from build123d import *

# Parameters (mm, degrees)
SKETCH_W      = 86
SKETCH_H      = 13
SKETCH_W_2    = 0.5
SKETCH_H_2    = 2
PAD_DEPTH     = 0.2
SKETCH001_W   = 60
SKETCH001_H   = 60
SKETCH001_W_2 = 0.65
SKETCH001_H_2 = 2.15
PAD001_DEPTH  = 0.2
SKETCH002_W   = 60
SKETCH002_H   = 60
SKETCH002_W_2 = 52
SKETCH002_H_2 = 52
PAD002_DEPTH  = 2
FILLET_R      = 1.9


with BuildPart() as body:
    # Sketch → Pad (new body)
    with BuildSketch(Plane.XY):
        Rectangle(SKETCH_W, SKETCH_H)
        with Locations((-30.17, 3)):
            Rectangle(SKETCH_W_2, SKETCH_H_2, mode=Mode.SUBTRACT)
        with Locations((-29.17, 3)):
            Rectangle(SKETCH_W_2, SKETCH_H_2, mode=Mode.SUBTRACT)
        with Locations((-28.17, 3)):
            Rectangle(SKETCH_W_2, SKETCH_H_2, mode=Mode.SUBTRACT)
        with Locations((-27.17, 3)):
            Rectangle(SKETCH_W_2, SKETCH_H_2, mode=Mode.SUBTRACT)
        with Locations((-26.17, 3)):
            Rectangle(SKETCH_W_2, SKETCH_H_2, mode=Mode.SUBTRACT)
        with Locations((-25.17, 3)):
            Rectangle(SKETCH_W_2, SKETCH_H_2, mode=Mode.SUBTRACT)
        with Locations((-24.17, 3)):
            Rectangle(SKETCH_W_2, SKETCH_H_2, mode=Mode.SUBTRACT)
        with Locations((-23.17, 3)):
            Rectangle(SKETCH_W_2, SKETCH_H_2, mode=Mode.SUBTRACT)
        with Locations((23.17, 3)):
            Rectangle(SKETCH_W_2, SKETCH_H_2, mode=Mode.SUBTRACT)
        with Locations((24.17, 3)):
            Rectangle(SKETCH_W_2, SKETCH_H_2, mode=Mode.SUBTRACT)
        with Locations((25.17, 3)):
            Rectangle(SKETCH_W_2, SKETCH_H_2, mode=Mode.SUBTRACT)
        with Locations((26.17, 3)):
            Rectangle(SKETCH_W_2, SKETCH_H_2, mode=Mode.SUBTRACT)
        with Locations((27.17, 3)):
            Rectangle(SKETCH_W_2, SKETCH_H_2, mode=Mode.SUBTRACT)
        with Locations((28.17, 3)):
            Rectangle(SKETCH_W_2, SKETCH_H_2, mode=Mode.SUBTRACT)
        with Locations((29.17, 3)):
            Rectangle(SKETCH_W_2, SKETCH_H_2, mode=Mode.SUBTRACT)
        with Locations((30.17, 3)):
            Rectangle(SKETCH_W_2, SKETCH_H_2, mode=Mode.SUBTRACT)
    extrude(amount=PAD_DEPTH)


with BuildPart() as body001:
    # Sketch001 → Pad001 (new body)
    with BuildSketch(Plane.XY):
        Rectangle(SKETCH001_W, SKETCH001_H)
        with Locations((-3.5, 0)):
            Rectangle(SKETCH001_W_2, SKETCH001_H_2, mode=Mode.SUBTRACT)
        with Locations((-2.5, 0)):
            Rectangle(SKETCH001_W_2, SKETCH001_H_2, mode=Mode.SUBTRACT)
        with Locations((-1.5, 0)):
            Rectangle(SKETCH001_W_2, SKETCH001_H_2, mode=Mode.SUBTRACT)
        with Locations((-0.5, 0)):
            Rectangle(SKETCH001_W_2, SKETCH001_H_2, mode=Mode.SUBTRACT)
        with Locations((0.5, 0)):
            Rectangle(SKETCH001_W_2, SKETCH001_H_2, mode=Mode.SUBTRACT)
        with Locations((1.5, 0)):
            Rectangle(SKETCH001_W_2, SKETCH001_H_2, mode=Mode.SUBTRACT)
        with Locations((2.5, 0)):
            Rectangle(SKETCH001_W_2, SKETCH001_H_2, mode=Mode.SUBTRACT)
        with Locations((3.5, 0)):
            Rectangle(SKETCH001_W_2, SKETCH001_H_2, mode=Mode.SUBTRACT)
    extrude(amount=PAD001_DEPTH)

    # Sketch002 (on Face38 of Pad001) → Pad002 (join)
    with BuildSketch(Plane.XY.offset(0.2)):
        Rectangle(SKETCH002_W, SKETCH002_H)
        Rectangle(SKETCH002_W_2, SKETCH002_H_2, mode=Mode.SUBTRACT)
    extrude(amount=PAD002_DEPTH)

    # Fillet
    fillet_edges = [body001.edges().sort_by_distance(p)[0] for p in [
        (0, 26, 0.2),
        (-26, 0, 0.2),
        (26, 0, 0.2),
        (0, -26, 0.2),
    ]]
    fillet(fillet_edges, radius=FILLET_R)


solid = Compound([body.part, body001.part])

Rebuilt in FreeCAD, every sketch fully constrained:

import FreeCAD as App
import Part
import Sketcher

V = App.Vector


def edges_at(feature, points):
    """Names of the edges that pass closest to the given points."""
    edges = feature.Shape.Edges
    near = lambda p: min(range(len(edges)), key=lambda i: edges[i].distToShape(Part.Vertex(*p))[0])
    return sorted({f"Edge{near(p) + 1}" for p in points})

doc = App.newDocument("Part")
body = doc.addObject("PartDesign::Body", "Body")

sketch1 = doc.addObject("Sketcher::SketchObject", "Sketch")
body.addObject(sketch1)
sketch1.AttachmentSupport = (doc.XY_Plane, [""])
sketch1.MapMode = "FlatFace"
sketch1.addGeometry(Part.LineSegment(V(-43, 6.5, 0), V(-43, -6.5, 0)), False)
sketch1.addGeometry(Part.LineSegment(V(-43, -6.5, 0), V(43, -6.5, 0)), False)
sketch1.addGeometry(Part.LineSegment(V(43, -6.5, 0), V(43, 6.5, 0)), False)
sketch1.addGeometry(Part.LineSegment(V(43, 6.5, 0), V(-43, 6.5, 0)), False)
sketch1.addGeometry(Part.LineSegment(V(-29.92, 2, 0), V(-30.42, 2, 0)), False)
sketch1.addGeometry(Part.LineSegment(V(-30.42, 2, 0), V(-30.42, 4, 0)), False)
sketch1.addGeometry(Part.LineSegment(V(-30.42, 4, 0), V(-29.92, 4, 0)), False)
sketch1.addGeometry(Part.LineSegment(V(-29.92, 4, 0), V(-29.92, 2, 0)), False)
sketch1.addGeometry(Part.LineSegment(V(-28.92, 2, 0), V(-29.42, 2, 0)), False)
sketch1.addGeometry(Part.LineSegment(V(-29.42, 2, 0), V(-29.42, 4, 0)), False)
sketch1.addGeometry(Part.LineSegment(V(-29.42, 4, 0), V(-28.92, 4, 0)), False)
sketch1.addGeometry(Part.LineSegment(V(-28.92, 4, 0), V(-28.92, 2, 0)), False)
sketch1.addGeometry(Part.LineSegment(V(-27.92, 2, 0), V(-28.42, 2, 0)), False)
sketch1.addGeometry(Part.LineSegment(V(-28.42, 2, 0), V(-28.42, 4, 0)), False)
sketch1.addGeometry(Part.LineSegment(V(-28.42, 4, 0), V(-27.92, 4, 0)), False)
sketch1.addGeometry(Part.LineSegment(V(-27.92, 4, 0), V(-27.92, 2, 0)), False)
sketch1.addGeometry(Part.LineSegment(V(-26.92, 2, 0), V(-27.42, 2, 0)), False)
sketch1.addGeometry(Part.LineSegment(V(-27.42, 2, 0), V(-27.42, 4, 0)), False)
sketch1.addGeometry(Part.LineSegment(V(-27.42, 4, 0), V(-26.92, 4, 0)), False)
sketch1.addGeometry(Part.LineSegment(V(-26.92, 4, 0), V(-26.92, 2, 0)), False)
sketch1.addGeometry(Part.LineSegment(V(-25.92, 2, 0), V(-26.42, 2, 0)), False)
sketch1.addGeometry(Part.LineSegment(V(-26.42, 2, 0), V(-26.42, 4, 0)), False)
sketch1.addGeometry(Part.LineSegment(V(-26.42, 4, 0), V(-25.92, 4, 0)), False)
sketch1.addGeometry(Part.LineSegment(V(-25.92, 4, 0), V(-25.92, 2, 0)), False)
sketch1.addGeometry(Part.LineSegment(V(-24.92, 2, 0), V(-25.42, 2, 0)), False)
sketch1.addGeometry(Part.LineSegment(V(-25.42, 2, 0), V(-25.42, 4, 0)), False)
sketch1.addGeometry(Part.LineSegment(V(-25.42, 4, 0), V(-24.92, 4, 0)), False)
sketch1.addGeometry(Part.LineSegment(V(-24.92, 4, 0), V(-24.92, 2, 0)), False)
sketch1.addGeometry(Part.LineSegment(V(-23.92, 2, 0), V(-24.42, 2, 0)), False)
sketch1.addGeometry(Part.LineSegment(V(-24.42, 2, 0), V(-24.42, 4, 0)), False)
sketch1.addGeometry(Part.LineSegment(V(-24.42, 4, 0), V(-23.92, 4, 0)), False)
sketch1.addGeometry(Part.LineSegment(V(-23.92, 4, 0), V(-23.92, 2, 0)), False)
sketch1.addGeometry(Part.LineSegment(V(-22.92, 2, 0), V(-23.42, 2, 0)), False)
sketch1.addGeometry(Part.LineSegment(V(-23.42, 2, 0), V(-23.42, 4, 0)), False)
sketch1.addGeometry(Part.LineSegment(V(-23.42, 4, 0), V(-22.92, 4, 0)), False)
sketch1.addGeometry(Part.LineSegment(V(-22.92, 4, 0), V(-22.92, 2, 0)), False)
sketch1.addGeometry(Part.LineSegment(V(23.42, 2, 0), V(22.92, 2, 0)), False)
sketch1.addGeometry(Part.LineSegment(V(22.92, 2, 0), V(22.92, 4, 0)), False)
sketch1.addGeometry(Part.LineSegment(V(22.92, 4, 0), V(23.42, 4, 0)), False)
sketch1.addGeometry(Part.LineSegment(V(23.42, 4, 0), V(23.42, 2, 0)), False)
sketch1.addGeometry(Part.LineSegment(V(24.42, 2, 0), V(23.92, 2, 0)), False)
sketch1.addGeometry(Part.LineSegment(V(23.92, 2, 0), V(23.92, 4, 0)), False)
sketch1.addGeometry(Part.LineSegment(V(23.92, 4, 0), V(24.42, 4, 0)), False)
sketch1.addGeometry(Part.LineSegment(V(24.42, 4, 0), V(24.42, 2, 0)), False)
sketch1.addGeometry(Part.LineSegment(V(25.42, 2, 0), V(24.92, 2, 0)), False)
sketch1.addGeometry(Part.LineSegment(V(24.92, 2, 0), V(24.92, 4, 0)), False)
sketch1.addGeometry(Part.LineSegment(V(24.92, 4, 0), V(25.42, 4, 0)), False)
sketch1.addGeometry(Part.LineSegment(V(25.42, 4, 0), V(25.42, 2, 0)), False)
sketch1.addGeometry(Part.LineSegment(V(26.42, 2, 0), V(25.92, 2, 0)), False)
sketch1.addGeometry(Part.LineSegment(V(25.92, 2, 0), V(25.92, 4, 0)), False)
sketch1.addGeometry(Part.LineSegment(V(25.92, 4, 0), V(26.42, 4, 0)), False)
sketch1.addGeometry(Part.LineSegment(V(26.42, 4, 0), V(26.42, 2, 0)), False)
sketch1.addGeometry(Part.LineSegment(V(27.42, 2, 0), V(26.92, 2, 0)), False)
sketch1.addGeometry(Part.LineSegment(V(26.92, 2, 0), V(26.92, 4, 0)), False)
sketch1.addGeometry(Part.LineSegment(V(26.92, 4, 0), V(27.42, 4, 0)), False)
sketch1.addGeometry(Part.LineSegment(V(27.42, 4, 0), V(27.42, 2, 0)), False)
sketch1.addGeometry(Part.LineSegment(V(28.42, 2, 0), V(27.92, 2, 0)), False)
sketch1.addGeometry(Part.LineSegment(V(27.92, 2, 0), V(27.92, 4, 0)), False)
sketch1.addGeometry(Part.LineSegment(V(27.92, 4, 0), V(28.42, 4, 0)), False)
sketch1.addGeometry(Part.LineSegment(V(28.42, 4, 0), V(28.42, 2, 0)), False)
sketch1.addGeometry(Part.LineSegment(V(29.42, 2, 0), V(28.92, 2, 0)), False)
sketch1.addGeometry(Part.LineSegment(V(28.92, 2, 0), V(28.92, 4, 0)), False)
sketch1.addGeometry(Part.LineSegment(V(28.92, 4, 0), V(29.42, 4, 0)), False)
sketch1.addGeometry(Part.LineSegment(V(29.42, 4, 0), V(29.42, 2, 0)), False)
sketch1.addGeometry(Part.LineSegment(V(30.42, 2, 0), V(29.92, 2, 0)), False)
sketch1.addGeometry(Part.LineSegment(V(29.92, 2, 0), V(29.92, 4, 0)), False)
sketch1.addGeometry(Part.LineSegment(V(29.92, 4, 0), V(30.42, 4, 0)), False)
sketch1.addGeometry(Part.LineSegment(V(30.42, 4, 0), V(30.42, 2, 0)), False)
sketch1.addConstraint(Sketcher.Constraint("Coincident", 0, 2, 1, 1))
sketch1.addConstraint(Sketcher.Constraint("Coincident", 1, 2, 2, 1))
sketch1.addConstraint(Sketcher.Constraint("Coincident", 2, 2, 3, 1))
sketch1.addConstraint(Sketcher.Constraint("Coincident", 3, 2, 0, 1))
sketch1.addConstraint(Sketcher.Constraint("Coincident", 4, 2, 5, 1))
sketch1.addConstraint(Sketcher.Constraint("Coincident", 5, 2, 6, 1))
sketch1.addConstraint(Sketcher.Constraint("Coincident", 6, 2, 7, 1))
sketch1.addConstraint(Sketcher.Constraint("Coincident", 7, 2, 4, 1))
sketch1.addConstraint(Sketcher.Constraint("Coincident", 8, 2, 9, 1))
sketch1.addConstraint(Sketcher.Constraint("Coincident", 9, 2, 10, 1))
sketch1.addConstraint(Sketcher.Constraint("Coincident", 10, 2, 11, 1))
sketch1.addConstraint(Sketcher.Constraint("Coincident", 11, 2, 8, 1))
sketch1.addConstraint(Sketcher.Constraint("Coincident", 12, 2, 13, 1))
sketch1.addConstraint(Sketcher.Constraint("Coincident", 13, 2, 14, 1))
sketch1.addConstraint(Sketcher.Constraint("Coincident", 14, 2, 15, 1))
sketch1.addConstraint(Sketcher.Constraint("Coincident", 15, 2, 12, 1))
sketch1.addConstraint(Sketcher.Constraint("Coincident", 16, 2, 17, 1))
sketch1.addConstraint(Sketcher.Constraint("Coincident", 17, 2, 18, 1))
sketch1.addConstraint(Sketcher.Constraint("Coincident", 18, 2, 19, 1))
sketch1.addConstraint(Sketcher.Constraint("Coincident", 19, 2, 16, 1))
sketch1.addConstraint(Sketcher.Constraint("Coincident", 20, 2, 21, 1))
sketch1.addConstraint(Sketcher.Constraint("Coincident", 21, 2, 22, 1))
sketch1.addConstraint(Sketcher.Constraint("Coincident", 22, 2, 23, 1))
sketch1.addConstraint(Sketcher.Constraint("Coincident", 23, 2, 20, 1))
sketch1.addConstraint(Sketcher.Constraint("Coincident", 24, 2, 25, 1))
sketch1.addConstraint(Sketcher.Constraint("Coincident", 25, 2, 26, 1))
sketch1.addConstraint(Sketcher.Constraint("Coincident", 26, 2, 27, 1))
sketch1.addConstraint(Sketcher.Constraint("Coincident", 27, 2, 24, 1))
sketch1.addConstraint(Sketcher.Constraint("Coincident", 28, 2, 29, 1))
sketch1.addConstraint(Sketcher.Constraint("Coincident", 29, 2, 30, 1))
sketch1.addConstraint(Sketcher.Constraint("Coincident", 30, 2, 31, 1))
sketch1.addConstraint(Sketcher.Constraint("Coincident", 31, 2, 28, 1))
sketch1.addConstraint(Sketcher.Constraint("Coincident", 32, 2, 33, 1))
sketch1.addConstraint(Sketcher.Constraint("Coincident", 33, 2, 34, 1))
sketch1.addConstraint(Sketcher.Constraint("Coincident", 34, 2, 35, 1))
sketch1.addConstraint(Sketcher.Constraint("Coincident", 35, 2, 32, 1))
sketch1.addConstraint(Sketcher.Constraint("Coincident", 36, 2, 37, 1))
sketch1.addConstraint(Sketcher.Constraint("Coincident", 37, 2, 38, 1))
sketch1.addConstraint(Sketcher.Constraint("Coincident", 38, 2, 39, 1))
sketch1.addConstraint(Sketcher.Constraint("Coincident", 39, 2, 36, 1))
sketch1.addConstraint(Sketcher.Constraint("Coincident", 40, 2, 41, 1))
sketch1.addConstraint(Sketcher.Constraint("Coincident", 41, 2, 42, 1))
sketch1.addConstraint(Sketcher.Constraint("Coincident", 42, 2, 43, 1))
sketch1.addConstraint(Sketcher.Constraint("Coincident", 43, 2, 40, 1))
sketch1.addConstraint(Sketcher.Constraint("Coincident", 44, 2, 45, 1))
sketch1.addConstraint(Sketcher.Constraint("Coincident", 45, 2, 46, 1))
sketch1.addConstraint(Sketcher.Constraint("Coincident", 46, 2, 47, 1))
sketch1.addConstraint(Sketcher.Constraint("Coincident", 47, 2, 44, 1))
sketch1.addConstraint(Sketcher.Constraint("Coincident", 48, 2, 49, 1))
sketch1.addConstraint(Sketcher.Constraint("Coincident", 49, 2, 50, 1))
sketch1.addConstraint(Sketcher.Constraint("Coincident", 50, 2, 51, 1))
sketch1.addConstraint(Sketcher.Constraint("Coincident", 51, 2, 48, 1))
sketch1.addConstraint(Sketcher.Constraint("Coincident", 52, 2, 53, 1))
sketch1.addConstraint(Sketcher.Constraint("Coincident", 53, 2, 54, 1))
sketch1.addConstraint(Sketcher.Constraint("Coincident", 54, 2, 55, 1))
sketch1.addConstraint(Sketcher.Constraint("Coincident", 55, 2, 52, 1))
sketch1.addConstraint(Sketcher.Constraint("Coincident", 56, 2, 57, 1))
sketch1.addConstraint(Sketcher.Constraint("Coincident", 57, 2, 58, 1))
sketch1.addConstraint(Sketcher.Constraint("Coincident", 58, 2, 59, 1))
sketch1.addConstraint(Sketcher.Constraint("Coincident", 59, 2, 56, 1))
sketch1.addConstraint(Sketcher.Constraint("Coincident", 60, 2, 61, 1))
sketch1.addConstraint(Sketcher.Constraint("Coincident", 61, 2, 62, 1))
sketch1.addConstraint(Sketcher.Constraint("Coincident", 62, 2, 63, 1))
sketch1.addConstraint(Sketcher.Constraint("Coincident", 63, 2, 60, 1))
sketch1.addConstraint(Sketcher.Constraint("Coincident", 64, 2, 65, 1))
sketch1.addConstraint(Sketcher.Constraint("Coincident", 65, 2, 66, 1))
sketch1.addConstraint(Sketcher.Constraint("Coincident", 66, 2, 67, 1))
sketch1.addConstraint(Sketcher.Constraint("Coincident", 67, 2, 64, 1))
sketch1.addConstraint(Sketcher.Constraint("Vertical", 0))
sketch1.addConstraint(Sketcher.Constraint("Horizontal", 1))
sketch1.addConstraint(Sketcher.Constraint("Vertical", 2))
sketch1.addConstraint(Sketcher.Constraint("Horizontal", 3))
sketch1.addConstraint(Sketcher.Constraint("Horizontal", 4))
sketch1.addConstraint(Sketcher.Constraint("Vertical", 5))
sketch1.addConstraint(Sketcher.Constraint("Horizontal", 6))
sketch1.addConstraint(Sketcher.Constraint("Vertical", 7))
sketch1.addConstraint(Sketcher.Constraint("Horizontal", 8))
sketch1.addConstraint(Sketcher.Constraint("Vertical", 9))
sketch1.addConstraint(Sketcher.Constraint("Horizontal", 10))
sketch1.addConstraint(Sketcher.Constraint("Vertical", 11))
sketch1.addConstraint(Sketcher.Constraint("Horizontal", 12))
sketch1.addConstraint(Sketcher.Constraint("Vertical", 13))
sketch1.addConstraint(Sketcher.Constraint("Horizontal", 14))
sketch1.addConstraint(Sketcher.Constraint("Vertical", 15))
sketch1.addConstraint(Sketcher.Constraint("Horizontal", 16))
sketch1.addConstraint(Sketcher.Constraint("Vertical", 17))
sketch1.addConstraint(Sketcher.Constraint("Horizontal", 18))
sketch1.addConstraint(Sketcher.Constraint("Vertical", 19))
sketch1.addConstraint(Sketcher.Constraint("Horizontal", 20))
sketch1.addConstraint(Sketcher.Constraint("Vertical", 21))
sketch1.addConstraint(Sketcher.Constraint("Horizontal", 22))
sketch1.addConstraint(Sketcher.Constraint("Vertical", 23))
sketch1.addConstraint(Sketcher.Constraint("Horizontal", 24))
sketch1.addConstraint(Sketcher.Constraint("Vertical", 25))
sketch1.addConstraint(Sketcher.Constraint("Horizontal", 26))
sketch1.addConstraint(Sketcher.Constraint("Vertical", 27))
sketch1.addConstraint(Sketcher.Constraint("Horizontal", 28))
sketch1.addConstraint(Sketcher.Constraint("Vertical", 29))
sketch1.addConstraint(Sketcher.Constraint("Horizontal", 30))
sketch1.addConstraint(Sketcher.Constraint("Vertical", 31))
sketch1.addConstraint(Sketcher.Constraint("Horizontal", 32))
sketch1.addConstraint(Sketcher.Constraint("Vertical", 33))
sketch1.addConstraint(Sketcher.Constraint("Horizontal", 34))
sketch1.addConstraint(Sketcher.Constraint("Vertical", 35))
sketch1.addConstraint(Sketcher.Constraint("Horizontal", 36))
sketch1.addConstraint(Sketcher.Constraint("Vertical", 37))
sketch1.addConstraint(Sketcher.Constraint("Horizontal", 38))
sketch1.addConstraint(Sketcher.Constraint("Vertical", 39))
sketch1.addConstraint(Sketcher.Constraint("Horizontal", 40))
sketch1.addConstraint(Sketcher.Constraint("Vertical", 41))
sketch1.addConstraint(Sketcher.Constraint("Horizontal", 42))
sketch1.addConstraint(Sketcher.Constraint("Vertical", 43))
sketch1.addConstraint(Sketcher.Constraint("Horizontal", 44))
sketch1.addConstraint(Sketcher.Constraint("Vertical", 45))
sketch1.addConstraint(Sketcher.Constraint("Horizontal", 46))
sketch1.addConstraint(Sketcher.Constraint("Vertical", 47))
sketch1.addConstraint(Sketcher.Constraint("Horizontal", 48))
sketch1.addConstraint(Sketcher.Constraint("Vertical", 49))
sketch1.addConstraint(Sketcher.Constraint("Horizontal", 50))
sketch1.addConstraint(Sketcher.Constraint("Vertical", 51))
sketch1.addConstraint(Sketcher.Constraint("Horizontal", 52))
sketch1.addConstraint(Sketcher.Constraint("Vertical", 53))
sketch1.addConstraint(Sketcher.Constraint("Horizontal", 54))
sketch1.addConstraint(Sketcher.Constraint("Vertical", 55))
sketch1.addConstraint(Sketcher.Constraint("Horizontal", 56))
sketch1.addConstraint(Sketcher.Constraint("Vertical", 57))
sketch1.addConstraint(Sketcher.Constraint("Horizontal", 58))
sketch1.addConstraint(Sketcher.Constraint("Vertical", 59))
sketch1.addConstraint(Sketcher.Constraint("Horizontal", 60))
sketch1.addConstraint(Sketcher.Constraint("Vertical", 61))
sketch1.addConstraint(Sketcher.Constraint("Horizontal", 62))
sketch1.addConstraint(Sketcher.Constraint("Vertical", 63))
sketch1.addConstraint(Sketcher.Constraint("Horizontal", 64))
sketch1.addConstraint(Sketcher.Constraint("Vertical", 65))
sketch1.addConstraint(Sketcher.Constraint("Horizontal", 66))
sketch1.addConstraint(Sketcher.Constraint("Vertical", 67))
sketch1.addConstraint(Sketcher.Constraint("Symmetric", 0, 2, 2, 2, -1, 1))
sketch1.addConstraint(Sketcher.Constraint("Symmetric", 35, 2, 36, 2, -2))
sketch1.addConstraint(Sketcher.Constraint("Symmetric", 33, 2, 38, 2, -2))
sketch1.addConstraint(Sketcher.Constraint("Symmetric", 31, 2, 40, 2, -2))
sketch1.addConstraint(Sketcher.Constraint("Symmetric", 29, 2, 42, 2, -2))
sketch1.addConstraint(Sketcher.Constraint("Symmetric", 27, 2, 44, 2, -2))
sketch1.addConstraint(Sketcher.Constraint("Symmetric", 25, 2, 46, 2, -2))
sketch1.addConstraint(Sketcher.Constraint("Symmetric", 23, 2, 48, 2, -2))
sketch1.addConstraint(Sketcher.Constraint("Symmetric", 21, 2, 50, 2, -2))
sketch1.addConstraint(Sketcher.Constraint("Symmetric", 19, 2, 52, 2, -2))
sketch1.addConstraint(Sketcher.Constraint("Symmetric", 17, 2, 54, 2, -2))
sketch1.addConstraint(Sketcher.Constraint("Symmetric", 15, 2, 56, 2, -2))
sketch1.addConstraint(Sketcher.Constraint("Symmetric", 13, 2, 58, 2, -2))
sketch1.addConstraint(Sketcher.Constraint("Symmetric", 11, 2, 60, 2, -2))
sketch1.addConstraint(Sketcher.Constraint("Symmetric", 9, 2, 62, 2, -2))
sketch1.addConstraint(Sketcher.Constraint("Symmetric", 7, 2, 64, 2, -2))
sketch1.addConstraint(Sketcher.Constraint("Symmetric", 5, 2, 66, 2, -2))
sketch1.addConstraint(Sketcher.Constraint("Horizontal", 7, 2, 8, 2))
sketch1.addConstraint(Sketcher.Constraint("Horizontal", 6, 2, 9, 2))
sketch1.addConstraint(Sketcher.Constraint("Horizontal", 11, 2, 12, 2))
sketch1.addConstraint(Sketcher.Constraint("Horizontal", 10, 2, 13, 2))
sketch1.addConstraint(Sketcher.Constraint("Horizontal", 15, 2, 16, 2))
sketch1.addConstraint(Sketcher.Constraint("Horizontal", 14, 2, 17, 2))
sketch1.addConstraint(Sketcher.Constraint("Horizontal", 19, 2, 20, 2))
sketch1.addConstraint(Sketcher.Constraint("Horizontal", 18, 2, 21, 2))
sketch1.addConstraint(Sketcher.Constraint("Horizontal", 23, 2, 24, 2))
sketch1.addConstraint(Sketcher.Constraint("Horizontal", 22, 2, 25, 2))
sketch1.addConstraint(Sketcher.Constraint("Horizontal", 27, 2, 28, 2))
sketch1.addConstraint(Sketcher.Constraint("Horizontal", 26, 2, 29, 2))
sketch1.addConstraint(Sketcher.Constraint("Horizontal", 31, 2, 32, 2))
sketch1.addConstraint(Sketcher.Constraint("Horizontal", 30, 2, 33, 2))
sketch1.addConstraint(Sketcher.Constraint("Equal", 6, 8))
sketch1.addConstraint(Sketcher.Constraint("Equal", 10, 12))
sketch1.addConstraint(Sketcher.Constraint("Equal", 14, 16))
sketch1.addConstraint(Sketcher.Constraint("Equal", 18, 20))
sketch1.addConstraint(Sketcher.Constraint("Equal", 22, 24))
sketch1.addConstraint(Sketcher.Constraint("Equal", 26, 28))
sketch1.addConstraint(Sketcher.Constraint("Equal", 30, 32))
sketch1.addConstraint(Sketcher.Constraint("DistanceX", 1, 1, 1, 2, 86.0))
sketch1.addConstraint(Sketcher.Constraint("DistanceY", 0, 2, 0, 1, 13.0))
sketch1.addConstraint(Sketcher.Constraint("DistanceY", 5, 1, 5, 2, 2.0))
sketch1.addConstraint(Sketcher.Constraint("DistanceX", 4, 2, 4, 1, 0.5))
sketch1.addConstraint(Sketcher.Constraint("DistanceY", -1, 1, 4, 2, 2.0))
sketch1.addConstraint(Sketcher.Constraint("DistanceX", 4, 2, -1, 1, 30.42))
sketch1.addConstraint(Sketcher.Constraint("DistanceX", 8, 2, -1, 1, 29.42))
sketch1.addConstraint(Sketcher.Constraint("DistanceX", 12, 2, -1, 1, 28.42))
sketch1.addConstraint(Sketcher.Constraint("DistanceX", 16, 2, -1, 1, 27.42))
sketch1.addConstraint(Sketcher.Constraint("DistanceX", 20, 2, -1, 1, 26.42))
sketch1.addConstraint(Sketcher.Constraint("DistanceX", 24, 2, -1, 1, 25.42))
sketch1.addConstraint(Sketcher.Constraint("DistanceX", 28, 2, -1, 1, 24.42))
sketch1.addConstraint(Sketcher.Constraint("DistanceX", 32, 2, -1, 1, 23.42))
pad1 = doc.addObject("PartDesign::Pad", "Pad")
body.addObject(pad1)
pad1.Profile = sketch1
pad1.Length = 0.2
body2 = doc.addObject("PartDesign::Body", "Body001")

sketch2 = doc.addObject("Sketcher::SketchObject", "Sketch001")
body2.addObject(sketch2)
sketch2.AttachmentSupport = (doc.getObject("XY_Plane001"), [""])
sketch2.MapMode = "FlatFace"
sketch2.addGeometry(Part.LineSegment(V(-30, 30, 0), V(-30, -30, 0)), False)
sketch2.addGeometry(Part.LineSegment(V(-30, -30, 0), V(30, -30, 0)), False)
sketch2.addGeometry(Part.LineSegment(V(30, -30, 0), V(30, 30, 0)), False)
sketch2.addGeometry(Part.LineSegment(V(30, 30, 0), V(-30, 30, 0)), False)
sketch2.addGeometry(Part.LineSegment(V(-3.175, -1.075, 0), V(-3.825, -1.075, 0)), False)
sketch2.addGeometry(Part.LineSegment(V(-3.825, -1.075, 0), V(-3.825, 1.075, 0)), False)
sketch2.addGeometry(Part.LineSegment(V(-3.825, 1.075, 0), V(-3.175, 1.075, 0)), False)
sketch2.addGeometry(Part.LineSegment(V(-3.175, 1.075, 0), V(-3.175, -1.075, 0)), False)
sketch2.addGeometry(Part.LineSegment(V(-2.175, -1.075, 0), V(-2.825, -1.075, 0)), False)
sketch2.addGeometry(Part.LineSegment(V(-2.825, -1.075, 0), V(-2.825, 1.075, 0)), False)
sketch2.addGeometry(Part.LineSegment(V(-2.825, 1.075, 0), V(-2.175, 1.075, 0)), False)
sketch2.addGeometry(Part.LineSegment(V(-2.175, 1.075, 0), V(-2.175, -1.075, 0)), False)
sketch2.addGeometry(Part.LineSegment(V(-1.175, -1.075, 0), V(-1.825, -1.075, 0)), False)
sketch2.addGeometry(Part.LineSegment(V(-1.825, -1.075, 0), V(-1.825, 1.075, 0)), False)
sketch2.addGeometry(Part.LineSegment(V(-1.825, 1.075, 0), V(-1.175, 1.075, 0)), False)
sketch2.addGeometry(Part.LineSegment(V(-1.175, 1.075, 0), V(-1.175, -1.075, 0)), False)
sketch2.addGeometry(Part.LineSegment(V(-0.175, -1.075, 0), V(-0.825, -1.075, 0)), False)
sketch2.addGeometry(Part.LineSegment(V(-0.825, -1.075, 0), V(-0.825, 1.075, 0)), False)
sketch2.addGeometry(Part.LineSegment(V(-0.825, 1.075, 0), V(-0.175, 1.075, 0)), False)
sketch2.addGeometry(Part.LineSegment(V(-0.175, 1.075, 0), V(-0.175, -1.075, 0)), False)
sketch2.addGeometry(Part.LineSegment(V(0.825, -1.075, 0), V(0.175, -1.075, 0)), False)
sketch2.addGeometry(Part.LineSegment(V(0.175, -1.075, 0), V(0.175, 1.075, 0)), False)
sketch2.addGeometry(Part.LineSegment(V(0.175, 1.075, 0), V(0.825, 1.075, 0)), False)
sketch2.addGeometry(Part.LineSegment(V(0.825, 1.075, 0), V(0.825, -1.075, 0)), False)
sketch2.addGeometry(Part.LineSegment(V(1.825, -1.075, 0), V(1.175, -1.075, 0)), False)
sketch2.addGeometry(Part.LineSegment(V(1.175, -1.075, 0), V(1.175, 1.075, 0)), False)
sketch2.addGeometry(Part.LineSegment(V(1.175, 1.075, 0), V(1.825, 1.075, 0)), False)
sketch2.addGeometry(Part.LineSegment(V(1.825, 1.075, 0), V(1.825, -1.075, 0)), False)
sketch2.addGeometry(Part.LineSegment(V(2.825, -1.075, 0), V(2.175, -1.075, 0)), False)
sketch2.addGeometry(Part.LineSegment(V(2.175, -1.075, 0), V(2.175, 1.075, 0)), False)
sketch2.addGeometry(Part.LineSegment(V(2.175, 1.075, 0), V(2.825, 1.075, 0)), False)
sketch2.addGeometry(Part.LineSegment(V(2.825, 1.075, 0), V(2.825, -1.075, 0)), False)
sketch2.addGeometry(Part.LineSegment(V(3.825, -1.075, 0), V(3.175, -1.075, 0)), False)
sketch2.addGeometry(Part.LineSegment(V(3.175, -1.075, 0), V(3.175, 1.075, 0)), False)
sketch2.addGeometry(Part.LineSegment(V(3.175, 1.075, 0), V(3.825, 1.075, 0)), False)
sketch2.addGeometry(Part.LineSegment(V(3.825, 1.075, 0), V(3.825, -1.075, 0)), False)
sketch2.addConstraint(Sketcher.Constraint("Coincident", 0, 2, 1, 1))
sketch2.addConstraint(Sketcher.Constraint("Coincident", 1, 2, 2, 1))
sketch2.addConstraint(Sketcher.Constraint("Coincident", 2, 2, 3, 1))
sketch2.addConstraint(Sketcher.Constraint("Coincident", 3, 2, 0, 1))
sketch2.addConstraint(Sketcher.Constraint("Coincident", 4, 2, 5, 1))
sketch2.addConstraint(Sketcher.Constraint("Coincident", 5, 2, 6, 1))
sketch2.addConstraint(Sketcher.Constraint("Coincident", 6, 2, 7, 1))
sketch2.addConstraint(Sketcher.Constraint("Coincident", 7, 2, 4, 1))
sketch2.addConstraint(Sketcher.Constraint("Coincident", 8, 2, 9, 1))
sketch2.addConstraint(Sketcher.Constraint("Coincident", 9, 2, 10, 1))
sketch2.addConstraint(Sketcher.Constraint("Coincident", 10, 2, 11, 1))
sketch2.addConstraint(Sketcher.Constraint("Coincident", 11, 2, 8, 1))
sketch2.addConstraint(Sketcher.Constraint("Coincident", 12, 2, 13, 1))
sketch2.addConstraint(Sketcher.Constraint("Coincident", 13, 2, 14, 1))
sketch2.addConstraint(Sketcher.Constraint("Coincident", 14, 2, 15, 1))
sketch2.addConstraint(Sketcher.Constraint("Coincident", 15, 2, 12, 1))
sketch2.addConstraint(Sketcher.Constraint("Coincident", 16, 2, 17, 1))
sketch2.addConstraint(Sketcher.Constraint("Coincident", 17, 2, 18, 1))
sketch2.addConstraint(Sketcher.Constraint("Coincident", 18, 2, 19, 1))
sketch2.addConstraint(Sketcher.Constraint("Coincident", 19, 2, 16, 1))
sketch2.addConstraint(Sketcher.Constraint("Coincident", 20, 2, 21, 1))
sketch2.addConstraint(Sketcher.Constraint("Coincident", 21, 2, 22, 1))
sketch2.addConstraint(Sketcher.Constraint("Coincident", 22, 2, 23, 1))
sketch2.addConstraint(Sketcher.Constraint("Coincident", 23, 2, 20, 1))
sketch2.addConstraint(Sketcher.Constraint("Coincident", 24, 2, 25, 1))
sketch2.addConstraint(Sketcher.Constraint("Coincident", 25, 2, 26, 1))
sketch2.addConstraint(Sketcher.Constraint("Coincident", 26, 2, 27, 1))
sketch2.addConstraint(Sketcher.Constraint("Coincident", 27, 2, 24, 1))
sketch2.addConstraint(Sketcher.Constraint("Coincident", 28, 2, 29, 1))
sketch2.addConstraint(Sketcher.Constraint("Coincident", 29, 2, 30, 1))
sketch2.addConstraint(Sketcher.Constraint("Coincident", 30, 2, 31, 1))
sketch2.addConstraint(Sketcher.Constraint("Coincident", 31, 2, 28, 1))
sketch2.addConstraint(Sketcher.Constraint("Coincident", 32, 2, 33, 1))
sketch2.addConstraint(Sketcher.Constraint("Coincident", 33, 2, 34, 1))
sketch2.addConstraint(Sketcher.Constraint("Coincident", 34, 2, 35, 1))
sketch2.addConstraint(Sketcher.Constraint("Coincident", 35, 2, 32, 1))
sketch2.addConstraint(Sketcher.Constraint("Vertical", 0))
sketch2.addConstraint(Sketcher.Constraint("Horizontal", 1))
sketch2.addConstraint(Sketcher.Constraint("Vertical", 2))
sketch2.addConstraint(Sketcher.Constraint("Horizontal", 3))
sketch2.addConstraint(Sketcher.Constraint("Horizontal", 4))
sketch2.addConstraint(Sketcher.Constraint("Vertical", 5))
sketch2.addConstraint(Sketcher.Constraint("Horizontal", 6))
sketch2.addConstraint(Sketcher.Constraint("Vertical", 7))
sketch2.addConstraint(Sketcher.Constraint("Horizontal", 8))
sketch2.addConstraint(Sketcher.Constraint("Vertical", 9))
sketch2.addConstraint(Sketcher.Constraint("Horizontal", 10))
sketch2.addConstraint(Sketcher.Constraint("Vertical", 11))
sketch2.addConstraint(Sketcher.Constraint("Horizontal", 12))
sketch2.addConstraint(Sketcher.Constraint("Vertical", 13))
sketch2.addConstraint(Sketcher.Constraint("Horizontal", 14))
sketch2.addConstraint(Sketcher.Constraint("Vertical", 15))
sketch2.addConstraint(Sketcher.Constraint("Horizontal", 16))
sketch2.addConstraint(Sketcher.Constraint("Vertical", 17))
sketch2.addConstraint(Sketcher.Constraint("Horizontal", 18))
sketch2.addConstraint(Sketcher.Constraint("Vertical", 19))
sketch2.addConstraint(Sketcher.Constraint("Horizontal", 20))
sketch2.addConstraint(Sketcher.Constraint("Vertical", 21))
sketch2.addConstraint(Sketcher.Constraint("Horizontal", 22))
sketch2.addConstraint(Sketcher.Constraint("Vertical", 23))
sketch2.addConstraint(Sketcher.Constraint("Horizontal", 24))
sketch2.addConstraint(Sketcher.Constraint("Vertical", 25))
sketch2.addConstraint(Sketcher.Constraint("Horizontal", 26))
sketch2.addConstraint(Sketcher.Constraint("Vertical", 27))
sketch2.addConstraint(Sketcher.Constraint("Horizontal", 28))
sketch2.addConstraint(Sketcher.Constraint("Vertical", 29))
sketch2.addConstraint(Sketcher.Constraint("Horizontal", 30))
sketch2.addConstraint(Sketcher.Constraint("Vertical", 31))
sketch2.addConstraint(Sketcher.Constraint("Horizontal", 32))
sketch2.addConstraint(Sketcher.Constraint("Vertical", 33))
sketch2.addConstraint(Sketcher.Constraint("Horizontal", 34))
sketch2.addConstraint(Sketcher.Constraint("Vertical", 35))
sketch2.addConstraint(Sketcher.Constraint("Symmetric", 0, 2, 2, 2, -1, 1))
sketch2.addConstraint(Sketcher.Constraint("Symmetric", 18, 2, 20, 2, -1, 1))
sketch2.addConstraint(Sketcher.Constraint("Symmetric", 16, 2, 22, 2, -1, 1))
sketch2.addConstraint(Sketcher.Constraint("Symmetric", 14, 2, 24, 2, -1, 1))
sketch2.addConstraint(Sketcher.Constraint("Symmetric", 12, 2, 26, 2, -1, 1))
sketch2.addConstraint(Sketcher.Constraint("Symmetric", 10, 2, 28, 2, -1, 1))
sketch2.addConstraint(Sketcher.Constraint("Symmetric", 8, 2, 30, 2, -1, 1))
sketch2.addConstraint(Sketcher.Constraint("Symmetric", 6, 2, 32, 2, -1, 1))
sketch2.addConstraint(Sketcher.Constraint("Symmetric", 4, 2, 34, 2, -1, 1))
sketch2.addConstraint(Sketcher.Constraint("Horizontal", 7, 2, 8, 2))
sketch2.addConstraint(Sketcher.Constraint("Horizontal", 6, 2, 9, 2))
sketch2.addConstraint(Sketcher.Constraint("Horizontal", 11, 2, 12, 2))
sketch2.addConstraint(Sketcher.Constraint("Horizontal", 10, 2, 13, 2))
sketch2.addConstraint(Sketcher.Constraint("Horizontal", 15, 2, 16, 2))
sketch2.addConstraint(Sketcher.Constraint("Horizontal", 14, 2, 17, 2))
sketch2.addConstraint(Sketcher.Constraint("Horizontal", 19, 2, 20, 2))
sketch2.addConstraint(Sketcher.Constraint("Equal", 6, 8))
sketch2.addConstraint(Sketcher.Constraint("Equal", 10, 12))
sketch2.addConstraint(Sketcher.Constraint("Equal", 14, 16))
sketch2.addConstraint(Sketcher.Constraint("Equal", 3, 0))
sketch2.addConstraint(Sketcher.Constraint("DistanceX", 1, 1, 1, 2, 60.0))
sketch2.addConstraint(Sketcher.Constraint("DistanceX", 4, 2, 8, 2, 1.0))
sketch2.addConstraint(Sketcher.Constraint("DistanceX", 8, 2, 12, 2, 1.0))
sketch2.addConstraint(Sketcher.Constraint("DistanceX", 12, 2, 16, 2, 1.0))
sketch2.addConstraint(Sketcher.Constraint("DistanceX", 16, 2, 20, 2, 1.0))
sketch2.addConstraint(Sketcher.Constraint("DistanceX", 4, 2, 4, 1, 0.65))
sketch2.addConstraint(Sketcher.Constraint("DistanceY", 5, 1, 5, 2, 2.15))
pad2 = doc.addObject("PartDesign::Pad", "Pad001")
body2.addObject(pad2)
pad2.Profile = sketch2
pad2.Length = 0.2

sketch3 = doc.addObject("Sketcher::SketchObject", "Sketch002")
body2.addObject(sketch3)
sketch3.AttachmentSupport = (doc.getObject("XY_Plane001"), [""])
sketch3.MapMode = "FlatFace"
sketch3.AttachmentOffset = App.Placement(V(0, 0, 0.2), App.Rotation())
sketch3.addGeometry(Part.LineSegment(V(-30, 30, 0), V(-30, -30, 0)), False)
sketch3.addGeometry(Part.LineSegment(V(-30, -30, 0), V(30, -30, 0)), False)
sketch3.addGeometry(Part.LineSegment(V(30, -30, 0), V(30, 30, 0)), False)
sketch3.addGeometry(Part.LineSegment(V(30, 30, 0), V(-30, 30, 0)), False)
sketch3.addGeometry(Part.LineSegment(V(26, -26, 0), V(-26, -26, 0)), False)
sketch3.addGeometry(Part.LineSegment(V(-26, -26, 0), V(-26, 26, 0)), False)
sketch3.addGeometry(Part.LineSegment(V(-26, 26, 0), V(26, 26, 0)), False)
sketch3.addGeometry(Part.LineSegment(V(26, 26, 0), V(26, -26, 0)), False)
sketch3.addConstraint(Sketcher.Constraint("Coincident", 0, 2, 1, 1))
sketch3.addConstraint(Sketcher.Constraint("Coincident", 1, 2, 2, 1))
sketch3.addConstraint(Sketcher.Constraint("Coincident", 2, 2, 3, 1))
sketch3.addConstraint(Sketcher.Constraint("Coincident", 3, 2, 0, 1))
sketch3.addConstraint(Sketcher.Constraint("Coincident", 4, 2, 5, 1))
sketch3.addConstraint(Sketcher.Constraint("Coincident", 5, 2, 6, 1))
sketch3.addConstraint(Sketcher.Constraint("Coincident", 6, 2, 7, 1))
sketch3.addConstraint(Sketcher.Constraint("Coincident", 7, 2, 4, 1))
sketch3.addConstraint(Sketcher.Constraint("Vertical", 0))
sketch3.addConstraint(Sketcher.Constraint("Horizontal", 1))
sketch3.addConstraint(Sketcher.Constraint("Vertical", 2))
sketch3.addConstraint(Sketcher.Constraint("Horizontal", 3))
sketch3.addConstraint(Sketcher.Constraint("Horizontal", 4))
sketch3.addConstraint(Sketcher.Constraint("Vertical", 5))
sketch3.addConstraint(Sketcher.Constraint("Horizontal", 6))
sketch3.addConstraint(Sketcher.Constraint("Vertical", 7))
sketch3.addConstraint(Sketcher.Constraint("Symmetric", 0, 2, 2, 2, -1, 1))
sketch3.addConstraint(Sketcher.Constraint("Symmetric", 4, 2, 6, 2, -1, 1))
sketch3.addConstraint(Sketcher.Constraint("Equal", 3, 0))
sketch3.addConstraint(Sketcher.Constraint("Equal", 6, 5))
sketch3.addConstraint(Sketcher.Constraint("DistanceX", 1, 1, 1, 2, 60.0))
sketch3.addConstraint(Sketcher.Constraint("DistanceX", 4, 2, 4, 1, 52.0))
pad3 = doc.addObject("PartDesign::Pad", "Pad002")
body2.addObject(pad3)
pad3.Profile = sketch3
pad3.Length = 2
doc.recompute()

fillet = doc.addObject("PartDesign::Fillet", "Fillet")
body2.addObject(fillet)
fillet.Base = (pad3, edges_at(pad3, [
    (0, 26, 0.2),
    (-26, 0, 0.2),
    (26, 0, 0.2),
    (0, -26, 0.2),
]))
fillet.Radius = 1.9

doc.recompute()
